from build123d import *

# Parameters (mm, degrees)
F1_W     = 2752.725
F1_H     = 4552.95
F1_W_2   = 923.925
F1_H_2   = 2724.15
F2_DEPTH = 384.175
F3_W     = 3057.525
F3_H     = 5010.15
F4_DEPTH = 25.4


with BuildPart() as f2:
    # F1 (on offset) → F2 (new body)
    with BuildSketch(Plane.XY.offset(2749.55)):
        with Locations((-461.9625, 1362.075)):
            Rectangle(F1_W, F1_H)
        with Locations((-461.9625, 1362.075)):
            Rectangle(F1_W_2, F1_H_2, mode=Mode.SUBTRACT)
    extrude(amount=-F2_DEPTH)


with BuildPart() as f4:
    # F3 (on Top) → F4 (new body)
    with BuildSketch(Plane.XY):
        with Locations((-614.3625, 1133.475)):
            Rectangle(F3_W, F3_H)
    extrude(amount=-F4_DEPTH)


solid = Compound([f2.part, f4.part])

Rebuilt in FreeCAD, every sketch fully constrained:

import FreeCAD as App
import Part
import Sketcher

V = App.Vector
Q = App.Units.Quantity

doc = App.newDocument("Part")
body = doc.addObject("PartDesign::Body", "Body")

sketch1 = body.newObject("Sketcher::SketchObject", "Sketch")
sketch1.AttachmentSupport = (doc.getObject("XY_Plane"), [""])
sketch1.MapMode = "FlatFace"
sketch1.AttachmentOffset = App.Placement(V(0, 0, 108.25 * 25.4), App.Rotation())
sketch1.addGeometry([
    Part.LineSegment(V(-1838, 3639, 0), V(-1838, -914, 0)),
    Part.LineSegment(V(-1838, -914, 0), V(914, -914, 0)),
    Part.LineSegment(V(914, -914, 0), V(914, 3639, 0)),
    Part.LineSegment(V(914, 3639, 0), V(-1838, 3639, 0)),
    Part.LineSegment(V(0, 0, 0), V(-924, 0, 0)),
    Part.LineSegment(V(-924, 0, 0), V(-924, 2724, 0)),
    Part.LineSegment(V(-924, 2724, 0), V(0, 2724, 0)),
    Part.LineSegment(V(0, 2724, 0), V(0, 0, 0)),
], False)
sketch1.addConstraint([
    Sketcher.Constraint("Coincident", 0, 2, 1, 1),
    Sketcher.Constraint("Coincident", 1, 2, 2, 1),
    Sketcher.Constraint("Coincident", 2, 2, 3, 1),
    Sketcher.Constraint("Coincident", 3, 2, 0, 1),
    Sketcher.Constraint("Coincident", 4, 2, 5, 1),
    Sketcher.Constraint("Coincident", 5, 2, 6, 1),
    Sketcher.Constraint("Coincident", 6, 2, 7, 1),
    Sketcher.Constraint("Coincident", 7, 2, 4, 1),
    Sketcher.Constraint("Vertical", 0),
    Sketcher.Constraint("Horizontal", 1),
    Sketcher.Constraint("Vertical", 2),
    Sketcher.Constraint("Horizontal", 3),
    Sketcher.Constraint("Horizontal", 4),
    Sketcher.Constraint("Vertical", 5),
    Sketcher.Constraint("Horizontal", 6),
    Sketcher.Constraint("Vertical", 7),
    Sketcher.Constraint("Coincident", 7, 2, -1, 1),
    Sketcher.Constraint("DistanceY", 0, 2, -1, 1, Q("36 in")),
    Sketcher.Constraint("DistanceX", -1, 1, 1, 2, Q("36 in")),
    Sketcher.Constraint("DistanceX", 0, 2, 4, 2, Q("36 in")),
    Sketcher.Constraint("DistanceY", 5, 2, 3, 2, Q("36 in")),
    Sketcher.Constraint("DistanceY", 0, 2, 0, 1, Q("179.25 in")),
    Sketcher.Constraint("DistanceX", 1, 1, 1, 2, Q("108.375 in")),
])
pad1 = body.newObject("PartDesign::Pad", "Pad")
pad1.Profile = sketch1
pad1.Length = Q("15.125 in")
pad1.Reversed = True
body2 = doc.addObject("PartDesign::Body", "Body001")

sketch2 = body2.newObject("Sketcher::SketchObject", "Sketch001")
sketch2.AttachmentSupport = (doc.getObject("XY_Plane001"), [""])
sketch2.MapMode = "FlatFace"
sketch2.addGeometry([
    Part.LineSegment(V(-2143, 3639, 0), V(-2143, -1372, 0)),
    Part.LineSegment(V(-2143, -1372, 0), V(914, -1372, 0)),
    Part.LineSegment(V(914, -1372, 0), V(914, 3639, 0)),
    Part.LineSegment(V(914, 3639, 0), V(-2143, 3639, 0)),
], False)
sketch2.addConstraint([
    Sketcher.Constraint("Coincident", 0, 2, 1, 1),
    Sketcher.Constraint("Coincident", 1, 2, 2, 1),
    Sketcher.Constraint("Coincident", 2, 2, 3, 1),
    Sketcher.Constraint("Coincident", 3, 2, 0, 1),
    Sketcher.Constraint("Vertical", 0),
    Sketcher.Constraint("Horizontal", 1),
    Sketcher.Constraint("Vertical", 2),
    Sketcher.Constraint("Horizontal", 3),
    Sketcher.Constraint("DistanceY", 0, 2, -1, 1, Q("54 in")),
    Sketcher.Constraint("DistanceX", -1, 1, 1, 2, Q("36 in")),
    Sketcher.Constraint("DistanceY", 0, 2, 0, 1, Q("197.25 in")),
    Sketcher.Constraint("DistanceX", 1, 1, 1, 2, Q("120.375 in")),
])
pad2 = body2.newObject("PartDesign::Pad", "Pad001")
pad2.Profile = sketch2
pad2.Length = Q("1 in")
pad2.Reversed = True

doc.recompute()
